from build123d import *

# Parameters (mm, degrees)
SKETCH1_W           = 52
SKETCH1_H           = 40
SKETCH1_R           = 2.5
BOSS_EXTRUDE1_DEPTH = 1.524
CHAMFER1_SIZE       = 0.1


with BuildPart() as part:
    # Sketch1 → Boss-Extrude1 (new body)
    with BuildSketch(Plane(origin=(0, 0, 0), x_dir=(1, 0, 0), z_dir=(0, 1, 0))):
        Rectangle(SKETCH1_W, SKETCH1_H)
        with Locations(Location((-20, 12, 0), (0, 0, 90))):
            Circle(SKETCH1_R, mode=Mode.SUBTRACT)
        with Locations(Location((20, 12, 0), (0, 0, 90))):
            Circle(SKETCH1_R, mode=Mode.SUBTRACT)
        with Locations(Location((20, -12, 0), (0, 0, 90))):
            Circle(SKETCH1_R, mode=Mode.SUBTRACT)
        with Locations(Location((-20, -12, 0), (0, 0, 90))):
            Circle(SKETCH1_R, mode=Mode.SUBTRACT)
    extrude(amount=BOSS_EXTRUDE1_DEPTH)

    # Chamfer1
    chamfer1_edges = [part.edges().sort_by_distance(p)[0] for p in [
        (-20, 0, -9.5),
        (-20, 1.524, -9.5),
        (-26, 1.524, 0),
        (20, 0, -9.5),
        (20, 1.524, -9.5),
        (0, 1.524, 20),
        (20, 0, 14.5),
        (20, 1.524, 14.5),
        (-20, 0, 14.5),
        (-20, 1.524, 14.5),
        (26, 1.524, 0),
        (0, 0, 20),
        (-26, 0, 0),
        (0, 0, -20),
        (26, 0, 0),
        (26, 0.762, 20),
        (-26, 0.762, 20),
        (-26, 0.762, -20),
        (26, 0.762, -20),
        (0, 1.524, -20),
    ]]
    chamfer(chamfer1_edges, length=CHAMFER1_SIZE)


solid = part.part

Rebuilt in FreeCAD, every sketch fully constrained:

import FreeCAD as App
import Part
import Sketcher

V = App.Vector

doc = App.newDocument("Part")
params = doc.addObject("Spreadsheet::Sheet", "Params")
for row, (alias, value) in enumerate([
    ("sketch1_diameter", "5 mm"),
    ("sketch1_width", "52 mm"),
    ("sketch1_height", "40 mm"),
    ("pad1_length", "1.524 mm"),
    ("chamfer_size", "0.1 mm"),
], start=1):
    params.set(f"A{row}", alias)
    params.set(f"B{row}", "=" + value)
    params.setAlias(f"B{row}", alias)

body = doc.addObject("PartDesign::Body", "Body")

sketch1 = body.newObject("Sketcher::SketchObject", "Sketch")
sketch1.AttachmentSupport = (doc.getObject("XZ_Plane"), [""])
sketch1.MapMode = "FlatFace"
sketch1.addGeometry(Part.LineSegment(V(-26, -20, 0), V(-26, 20, 0)), False)
sketch1.addGeometry(Part.LineSegment(V(-26, 20, 0), V(26, 20, 0)), False)
sketch1.addGeometry(Part.LineSegment(V(26, 20, 0), V(26, -20, 0)), False)
sketch1.addGeometry(Part.LineSegment(V(26, -20, 0), V(-26, -20, 0)), False)
sketch1.addGeometry(Part.Circle(V(-20, 12, 0), V(0, 0, 1), 2.5), False)
sketch1.addGeometry(Part.Circle(V(20, 12, 0), V(0, 0, 1), 2.5), False)
sketch1.addGeometry(Part.Circle(V(-20, -12, 0), V(0, 0, 1), 2.5), False)
sketch1.addGeometry(Part.Circle(V(20, -12, 0), V(0, 0, 1), 2.5), False)
sketch1.addConstraint(Sketcher.Constraint("Coincident", 0, 2, 1, 1))
sketch1.addConstraint(Sketcher.Constraint("Coincident", 1, 2, 2, 1))
sketch1.addConstraint(Sketcher.Constraint("Coincident", 2, 2, 3, 1))
sketch1.addConstraint(Sketcher.Constraint("Coincident", 3, 2, 0, 1))
sketch1.addConstraint(Sketcher.Constraint("Vertical", 0))
sketch1.addConstraint(Sketcher.Constraint("Horizontal", 1))
sketch1.addConstraint(Sketcher.Constraint("Vertical", 2))
sketch1.addConstraint(Sketcher.Constraint("Horizontal", 3))
sketch1.addConstraint(Sketcher.Constraint("Equal", 4, 5))
sketch1.addConstraint(Sketcher.Constraint("Equal", 5, 6))
sketch1.addConstraint(Sketcher.Constraint("Equal", 6, 7))
sketch1.addConstraint(Sketcher.Constraint("Symmetric", 5, 3, 6, 3, -1, 1))
sketch1.addConstraint(Sketcher.Constraint("Symmetric", 4, 3, 7, 3, -1, 1))
sketch1.addConstraint(Sketcher.Constraint("Symmetric", 0, 2, 2, 2, -1, 1))
sketch1.addConstraint(Sketcher.Constraint("Symmetric", 4, 3, 5, 3, -2))
sketch1.addConstraint(Sketcher.Constraint("Diameter", 4, 5.0))
sketch1.addConstraint(Sketcher.Constraint("DistanceX", 1, 1, 1, 2, 52.0))
sketch1.addConstraint(Sketcher.Constraint("DistanceY", 0, 1, 0, 2, 40.0))
sketch1.addConstraint(Sketcher.Constraint("DistanceX", 4, 3, -1, 1, 20.0))
sketch1.addConstraint(Sketcher.Constraint("DistanceY", -1, 1, 4, 3, 12.0))
sketch1.setExpression("Constraints[15]", "Params.sketch1_diameter")
sketch1.setExpression("Constraints[16]", "Params.sketch1_width")
sketch1.setExpression("Constraints[17]", "Params.sketch1_height")
pad1 = body.newObject("PartDesign::Pad", "Pad")
pad1.Profile = sketch1
pad1.setExpression("Length", "Params.pad1_length")
pad1.Reversed = True
doc.recompute()

chamfer = body.newObject("PartDesign::Chamfer", "Chamfer")
chamfer.Base = (pad1, ["Edge1"])
chamfer.UseAllEdges = True
chamfer.setExpression("Size", "Params.chamfer_size")

doc.recompute()
